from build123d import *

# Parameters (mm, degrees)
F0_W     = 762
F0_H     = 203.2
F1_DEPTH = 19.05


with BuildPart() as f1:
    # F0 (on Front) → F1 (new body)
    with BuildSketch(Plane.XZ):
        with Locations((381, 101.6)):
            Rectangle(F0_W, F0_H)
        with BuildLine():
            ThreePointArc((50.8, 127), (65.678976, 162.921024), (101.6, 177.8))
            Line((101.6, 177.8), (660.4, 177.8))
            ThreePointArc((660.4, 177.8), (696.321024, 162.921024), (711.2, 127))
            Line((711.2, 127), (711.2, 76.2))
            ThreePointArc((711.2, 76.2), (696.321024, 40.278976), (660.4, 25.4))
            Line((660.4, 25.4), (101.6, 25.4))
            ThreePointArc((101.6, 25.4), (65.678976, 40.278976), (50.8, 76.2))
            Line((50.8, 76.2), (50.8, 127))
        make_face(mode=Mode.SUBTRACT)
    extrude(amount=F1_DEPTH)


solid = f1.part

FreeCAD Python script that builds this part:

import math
import FreeCAD as App
import Part
import Sketcher

V = App.Vector
Q = App.Units.Quantity

doc = App.newDocument("Part")
body = doc.addObject("PartDesign::Body", "Body")

# Sketch on XZ plane
sketch1 = doc.addObject("Sketcher::SketchObject", "Sketch")
body.addObject(sketch1)
sketch1.AttachmentSupport = (doc.XZ_Plane, [""])
sketch1.MapMode = "FlatFace"
sketch1.addGeometry([
    Part.LineSegment(V(0, 203, 0), V(0, 0, 0)),  # 0
    Part.LineSegment(V(0, 0, 0), V(762, 0, 0)),  # 1
    Part.LineSegment(V(762, 0, 0), V(762, 203, 0)),  # 2
    Part.LineSegment(V(762, 203, 0), V(0, 203, 0)),  # 3
    Part.LineSegment(V(51, 76, 0), V(51, 127, 0)),  # 4
    Part.ArcOfCircle(Part.Circle(V(102, 127, 0), V(0, 0, 1), 51), math.radians(90), math.radians(180)),  # 5
    Part.LineSegment(V(102, 178, 0), V(660, 178, 0)),  # 6
    Part.ArcOfCircle(Part.Circle(V(660, 127, 0), V(0, 0, 1), 51), math.radians(0), math.radians(90)),  # 7
    Part.LineSegment(V(711, 127, 0), V(711, 76, 0)),  # 8
    Part.ArcOfCircle(Part.Circle(V(660, 76, 0), V(0, 0, 1), 51), math.radians(-90), math.radians(0)),  # 9
    Part.LineSegment(V(660, 25, 0), V(102, 25, 0)),  # 10
    Part.ArcOfCircle(Part.Circle(V(102, 76, 0), V(0, 0, 1), 51), math.radians(-180), math.radians(-90)),  # 11
], False)
sketch1.addConstraint([
    Sketcher.Constraint("Coincident", 0, 2, 1, 1),
    Sketcher.Constraint("Coincident", 1, 2, 2, 1),
    Sketcher.Constraint("Coincident", 2, 2, 3, 1),
    Sketcher.Constraint("Coincident", 3, 2, 0, 1),
    Sketcher.Constraint("Tangent", 4, 2, 5, 2),
    Sketcher.Constraint("Tangent", 5, 1, 6, 1),
    Sketcher.Constraint("Tangent", 6, 2, 7, 2),
    Sketcher.Constraint("Tangent", 7, 1, 8, 1),
    Sketcher.Constraint("Tangent", 8, 2, 9, 2),
    Sketcher.Constraint("Tangent", 9, 1, 10, 1),
    Sketcher.Constraint("Tangent", 10, 2, 11, 2),
    Sketcher.Constraint("Tangent", 11, 1, 4, 1),
    Sketcher.Constraint("Vertical", 0),
    Sketcher.Constraint("Horizontal", 1),
    Sketcher.Constraint("Vertical", 2),
    Sketcher.Constraint("Horizontal", 3),
    Sketcher.Constraint("Vertical", 4),
    Sketcher.Constraint("Horizontal", 6),
    Sketcher.Constraint("Vertical", 8),
    Sketcher.Constraint("Horizontal", 10),
    Sketcher.Constraint("Coincident", 0, 2, -1, 1),
    Sketcher.Constraint("Equal", 5, 7),
    Sketcher.Constraint("Equal", 7, 9),
    Sketcher.Constraint("Equal", 9, 11),
    Sketcher.Constraint("Radius", 5, Q("2.0000001 in")),
    Sketcher.Constraint("DistanceX", 1, 1, 1, 2, Q("30 in")),
    Sketcher.Constraint("DistanceX", 6, 1, 6, 2, Q("22 in")),
    Sketcher.Constraint("DistanceY", 0, 2, 0, 1, Q("8 in")),
    Sketcher.Constraint("DistanceY", 4, 1, 4, 2, Q("2 in")),
    Sketcher.Constraint("DistanceX", -1, 1, 5, 3, Q("4.0000001 in")),
    Sketcher.Constraint("DistanceY", -1, 1, 5, 3, Q("4.9999999 in")),
])
pad1 = doc.addObject("PartDesign::Pad", "Pad")
body.addObject(pad1)
pad1.Profile = sketch1
pad1.Length = Q("0.75 in")

doc.recompute()
